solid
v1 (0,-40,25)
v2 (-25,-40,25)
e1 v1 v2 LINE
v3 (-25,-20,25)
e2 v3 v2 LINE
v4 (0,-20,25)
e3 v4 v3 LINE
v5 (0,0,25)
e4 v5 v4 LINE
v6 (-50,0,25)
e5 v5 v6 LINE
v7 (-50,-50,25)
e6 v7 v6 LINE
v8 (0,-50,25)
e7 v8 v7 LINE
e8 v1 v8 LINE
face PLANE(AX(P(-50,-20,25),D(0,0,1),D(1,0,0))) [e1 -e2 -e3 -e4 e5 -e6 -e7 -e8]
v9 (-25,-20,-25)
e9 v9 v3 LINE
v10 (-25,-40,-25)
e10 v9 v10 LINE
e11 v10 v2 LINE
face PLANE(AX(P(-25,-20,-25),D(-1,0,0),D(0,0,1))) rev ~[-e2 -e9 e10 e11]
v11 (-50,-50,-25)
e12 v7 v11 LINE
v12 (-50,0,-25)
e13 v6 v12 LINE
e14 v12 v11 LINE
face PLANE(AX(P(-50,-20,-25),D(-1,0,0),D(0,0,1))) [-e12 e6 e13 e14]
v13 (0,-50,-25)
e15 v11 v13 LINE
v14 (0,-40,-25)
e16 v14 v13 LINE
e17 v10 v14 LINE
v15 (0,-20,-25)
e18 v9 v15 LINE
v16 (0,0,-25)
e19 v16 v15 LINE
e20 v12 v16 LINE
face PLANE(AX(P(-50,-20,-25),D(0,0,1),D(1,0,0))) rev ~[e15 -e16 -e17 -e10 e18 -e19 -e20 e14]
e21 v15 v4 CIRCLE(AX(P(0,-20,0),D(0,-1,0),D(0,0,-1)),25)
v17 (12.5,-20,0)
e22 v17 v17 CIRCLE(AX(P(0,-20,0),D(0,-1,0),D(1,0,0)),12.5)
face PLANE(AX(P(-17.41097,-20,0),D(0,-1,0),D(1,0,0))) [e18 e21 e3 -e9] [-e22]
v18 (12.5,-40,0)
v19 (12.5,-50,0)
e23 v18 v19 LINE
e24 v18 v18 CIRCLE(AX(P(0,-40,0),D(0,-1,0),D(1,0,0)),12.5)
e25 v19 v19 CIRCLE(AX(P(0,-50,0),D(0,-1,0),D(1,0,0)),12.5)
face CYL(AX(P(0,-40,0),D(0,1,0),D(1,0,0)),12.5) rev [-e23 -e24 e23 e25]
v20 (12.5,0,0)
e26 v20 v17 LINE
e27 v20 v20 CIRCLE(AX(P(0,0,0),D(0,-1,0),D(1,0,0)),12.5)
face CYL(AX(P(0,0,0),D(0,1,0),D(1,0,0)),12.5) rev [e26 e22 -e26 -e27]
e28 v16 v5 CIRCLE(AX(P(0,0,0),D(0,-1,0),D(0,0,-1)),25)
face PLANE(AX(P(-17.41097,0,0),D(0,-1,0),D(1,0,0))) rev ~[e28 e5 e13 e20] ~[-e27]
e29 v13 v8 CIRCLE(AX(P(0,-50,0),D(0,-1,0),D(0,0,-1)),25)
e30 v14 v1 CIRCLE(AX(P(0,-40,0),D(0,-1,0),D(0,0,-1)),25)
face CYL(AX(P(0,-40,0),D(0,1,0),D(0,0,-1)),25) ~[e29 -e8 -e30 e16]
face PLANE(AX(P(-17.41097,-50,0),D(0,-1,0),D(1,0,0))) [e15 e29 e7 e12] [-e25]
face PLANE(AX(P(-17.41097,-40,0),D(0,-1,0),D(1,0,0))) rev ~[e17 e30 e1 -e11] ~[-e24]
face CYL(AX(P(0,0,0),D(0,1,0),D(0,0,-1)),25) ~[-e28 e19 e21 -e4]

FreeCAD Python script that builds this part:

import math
import FreeCAD as App
import Part
import Sketcher
from FreeCAD import Vector
Q = App.Units.Quantity


def add_polygon(sketch, points):
    """Adds a closed chain of lines whose ends are joined by coincident constraints."""
    first, n = sketch.GeometryCount, len(points)
    for a, b in zip(points, points[1:] + points[:1]):
        sketch.addGeometry(Part.LineSegment(App.Vector(*a, 0), App.Vector(*b, 0)), False)
    for i in range(n):
        sketch.addConstraint(Sketcher.Constraint("Coincident", first + i, 2, first + (i + 1) % n, 1))

doc = App.newDocument("Part")
body = doc.addObject("PartDesign::Body", "Body")

sketch1 = doc.addObject("Sketcher::SketchObject", "Sketch")
body.addObject(sketch1)
sketch1.AttachmentSupport = (doc.XZ_Plane, [""])
sketch1.MapMode = "FlatFace"
sketch1.addGeometry([
    Part.LineSegment(Vector(-50, -25, 0), Vector(0, -25, 0)),
    Part.ArcOfCircle(Part.Circle(Vector(0, 0, 0), Vector(0, 0, 1), 25), math.radians(-90), math.radians(90)),
    Part.LineSegment(Vector(0, 25, 0), Vector(-50, 25, 0)),
    Part.LineSegment(Vector(-50, 25, 0), Vector(-50, -25, 0)),
    Part.Circle(Vector(0, 0, 0), Vector(0, 0, 1), 12),
], False)
sketch1.addConstraint([
    Sketcher.Constraint("Tangent", 0, 2, 1, 1),
    Sketcher.Constraint("Tangent", 1, 2, 2, 1),
    Sketcher.Constraint("Coincident", 2, 2, 3, 1),
    Sketcher.Constraint("Coincident", 3, 2, 0, 1),
    Sketcher.Constraint("Horizontal", 0),
    Sketcher.Constraint("Horizontal", 2),
    Sketcher.Constraint("Vertical", 3),
    Sketcher.Constraint("Coincident", 1, 3, -1, 1),
    Sketcher.Constraint("Coincident", 4, 3, -1, 1),
    Sketcher.Constraint("Equal", 2, 3),
    Sketcher.Constraint("Diameter", 4, Q("25 mm")),
    Sketcher.Constraint("Radius", 1, Q("25 mm")),
])
pad1 = doc.addObject("PartDesign::Pad", "Pad")
body.addObject(pad1)
pad1.Profile = sketch1
pad1.Length = 20
body2 = doc.addObject("PartDesign::Body", "Body001")

sketch2 = doc.addObject("Sketcher::SketchObject", "Sketch001")
body2.addObject(sketch2)
sketch2.AttachmentSupport = (doc.getObject("XZ_Plane001"), [""])
sketch2.MapMode = "FlatFace"
sketch2.AttachmentOffset = App.Placement(Vector(0, 0, 40), App.Rotation())
sketch2.addGeometry([
    Part.LineSegment(Vector(0, 25, 0), Vector(-50, 25, 0)),
    Part.LineSegment(Vector(-50, 25, 0), Vector(-50, -25, 0)),
    Part.LineSegment(Vector(-50, -25, 0), Vector(0, -25, 0)),
    Part.ArcOfCircle(Part.Circle(Vector(0, 0, 0), Vector(0, 0, 1), 25), math.radians(-90), math.radians(90)),
    Part.Circle(Vector(0, 0, 0), Vector(0, 0, 1), 12),
], False)
sketch2.addConstraint([
    Sketcher.Constraint("Coincident", 0, 2, 1, 1),
    Sketcher.Constraint("Coincident", 1, 2, 2, 1),
    Sketcher.Constraint("Tangent", 2, 2, 3, 1),
    Sketcher.Constraint("Tangent", 3, 2, 0, 1),
    Sketcher.Constraint("Horizontal", 0),
    Sketcher.Constraint("Vertical", 1),
    Sketcher.Constraint("Horizontal", 2),
    Sketcher.Constraint("Coincident", 3, 3, -1, 1),
    Sketcher.Constraint("Coincident", 4, 3, -1, 1),
    Sketcher.Constraint("Equal", 2, 1),
    Sketcher.Constraint("Diameter", 4, Q("25 mm")),
    Sketcher.Constraint("Radius", 3, Q("25 mm")),
])
pad2 = doc.addObject("PartDesign::Pad", "Pad001")
body2.addObject(pad2)
pad2.Profile = sketch2
pad2.Length = 10
body.AllowCompound = True
doc.recompute()

boolean = doc.addObject("PartDesign::Boolean", "Boolean")
body.addObject(boolean)
boolean.Type = "Fuse"
boolean.addObjects([body2])

sketch3 = doc.addObject("Sketcher::SketchObject", "Sketch002")
body.addObject(sketch3)
sketch3.AttachmentSupport = (doc.XZ_Plane, [""])
sketch3.MapMode = "FlatFace"
sketch3.AttachmentOffset = App.Placement(Vector(0, 0, 20), App.Rotation())
add_polygon(sketch3, [(-50, 25), (-50, -25), (-25, -25), (-25, 25)])
sketch3.addConstraint([
    Sketcher.Constraint("Vertical", 0),
    Sketcher.Constraint("Horizontal", 1),
    Sketcher.Constraint("Vertical", 2),
    Sketcher.Constraint("Horizontal", 3),
    Sketcher.Constraint("DistanceX", 1, 1, 1, 2, Q("25 mm")),
    Sketcher.Constraint("DistanceY", 0, 2, 0, 1, Q("50 mm")),
    Sketcher.Constraint("DistanceX", 0, 2, -1, 1, Q("50 mm")),
    Sketcher.Constraint("DistanceY", 0, 2, -1, 1, Q("25 mm")),
])
pad3 = doc.addObject("PartDesign::Pad", "Pad002")
body.addObject(pad3)
pad3.Profile = sketch3
pad3.Type = "UpToLast"

doc.recompute()
